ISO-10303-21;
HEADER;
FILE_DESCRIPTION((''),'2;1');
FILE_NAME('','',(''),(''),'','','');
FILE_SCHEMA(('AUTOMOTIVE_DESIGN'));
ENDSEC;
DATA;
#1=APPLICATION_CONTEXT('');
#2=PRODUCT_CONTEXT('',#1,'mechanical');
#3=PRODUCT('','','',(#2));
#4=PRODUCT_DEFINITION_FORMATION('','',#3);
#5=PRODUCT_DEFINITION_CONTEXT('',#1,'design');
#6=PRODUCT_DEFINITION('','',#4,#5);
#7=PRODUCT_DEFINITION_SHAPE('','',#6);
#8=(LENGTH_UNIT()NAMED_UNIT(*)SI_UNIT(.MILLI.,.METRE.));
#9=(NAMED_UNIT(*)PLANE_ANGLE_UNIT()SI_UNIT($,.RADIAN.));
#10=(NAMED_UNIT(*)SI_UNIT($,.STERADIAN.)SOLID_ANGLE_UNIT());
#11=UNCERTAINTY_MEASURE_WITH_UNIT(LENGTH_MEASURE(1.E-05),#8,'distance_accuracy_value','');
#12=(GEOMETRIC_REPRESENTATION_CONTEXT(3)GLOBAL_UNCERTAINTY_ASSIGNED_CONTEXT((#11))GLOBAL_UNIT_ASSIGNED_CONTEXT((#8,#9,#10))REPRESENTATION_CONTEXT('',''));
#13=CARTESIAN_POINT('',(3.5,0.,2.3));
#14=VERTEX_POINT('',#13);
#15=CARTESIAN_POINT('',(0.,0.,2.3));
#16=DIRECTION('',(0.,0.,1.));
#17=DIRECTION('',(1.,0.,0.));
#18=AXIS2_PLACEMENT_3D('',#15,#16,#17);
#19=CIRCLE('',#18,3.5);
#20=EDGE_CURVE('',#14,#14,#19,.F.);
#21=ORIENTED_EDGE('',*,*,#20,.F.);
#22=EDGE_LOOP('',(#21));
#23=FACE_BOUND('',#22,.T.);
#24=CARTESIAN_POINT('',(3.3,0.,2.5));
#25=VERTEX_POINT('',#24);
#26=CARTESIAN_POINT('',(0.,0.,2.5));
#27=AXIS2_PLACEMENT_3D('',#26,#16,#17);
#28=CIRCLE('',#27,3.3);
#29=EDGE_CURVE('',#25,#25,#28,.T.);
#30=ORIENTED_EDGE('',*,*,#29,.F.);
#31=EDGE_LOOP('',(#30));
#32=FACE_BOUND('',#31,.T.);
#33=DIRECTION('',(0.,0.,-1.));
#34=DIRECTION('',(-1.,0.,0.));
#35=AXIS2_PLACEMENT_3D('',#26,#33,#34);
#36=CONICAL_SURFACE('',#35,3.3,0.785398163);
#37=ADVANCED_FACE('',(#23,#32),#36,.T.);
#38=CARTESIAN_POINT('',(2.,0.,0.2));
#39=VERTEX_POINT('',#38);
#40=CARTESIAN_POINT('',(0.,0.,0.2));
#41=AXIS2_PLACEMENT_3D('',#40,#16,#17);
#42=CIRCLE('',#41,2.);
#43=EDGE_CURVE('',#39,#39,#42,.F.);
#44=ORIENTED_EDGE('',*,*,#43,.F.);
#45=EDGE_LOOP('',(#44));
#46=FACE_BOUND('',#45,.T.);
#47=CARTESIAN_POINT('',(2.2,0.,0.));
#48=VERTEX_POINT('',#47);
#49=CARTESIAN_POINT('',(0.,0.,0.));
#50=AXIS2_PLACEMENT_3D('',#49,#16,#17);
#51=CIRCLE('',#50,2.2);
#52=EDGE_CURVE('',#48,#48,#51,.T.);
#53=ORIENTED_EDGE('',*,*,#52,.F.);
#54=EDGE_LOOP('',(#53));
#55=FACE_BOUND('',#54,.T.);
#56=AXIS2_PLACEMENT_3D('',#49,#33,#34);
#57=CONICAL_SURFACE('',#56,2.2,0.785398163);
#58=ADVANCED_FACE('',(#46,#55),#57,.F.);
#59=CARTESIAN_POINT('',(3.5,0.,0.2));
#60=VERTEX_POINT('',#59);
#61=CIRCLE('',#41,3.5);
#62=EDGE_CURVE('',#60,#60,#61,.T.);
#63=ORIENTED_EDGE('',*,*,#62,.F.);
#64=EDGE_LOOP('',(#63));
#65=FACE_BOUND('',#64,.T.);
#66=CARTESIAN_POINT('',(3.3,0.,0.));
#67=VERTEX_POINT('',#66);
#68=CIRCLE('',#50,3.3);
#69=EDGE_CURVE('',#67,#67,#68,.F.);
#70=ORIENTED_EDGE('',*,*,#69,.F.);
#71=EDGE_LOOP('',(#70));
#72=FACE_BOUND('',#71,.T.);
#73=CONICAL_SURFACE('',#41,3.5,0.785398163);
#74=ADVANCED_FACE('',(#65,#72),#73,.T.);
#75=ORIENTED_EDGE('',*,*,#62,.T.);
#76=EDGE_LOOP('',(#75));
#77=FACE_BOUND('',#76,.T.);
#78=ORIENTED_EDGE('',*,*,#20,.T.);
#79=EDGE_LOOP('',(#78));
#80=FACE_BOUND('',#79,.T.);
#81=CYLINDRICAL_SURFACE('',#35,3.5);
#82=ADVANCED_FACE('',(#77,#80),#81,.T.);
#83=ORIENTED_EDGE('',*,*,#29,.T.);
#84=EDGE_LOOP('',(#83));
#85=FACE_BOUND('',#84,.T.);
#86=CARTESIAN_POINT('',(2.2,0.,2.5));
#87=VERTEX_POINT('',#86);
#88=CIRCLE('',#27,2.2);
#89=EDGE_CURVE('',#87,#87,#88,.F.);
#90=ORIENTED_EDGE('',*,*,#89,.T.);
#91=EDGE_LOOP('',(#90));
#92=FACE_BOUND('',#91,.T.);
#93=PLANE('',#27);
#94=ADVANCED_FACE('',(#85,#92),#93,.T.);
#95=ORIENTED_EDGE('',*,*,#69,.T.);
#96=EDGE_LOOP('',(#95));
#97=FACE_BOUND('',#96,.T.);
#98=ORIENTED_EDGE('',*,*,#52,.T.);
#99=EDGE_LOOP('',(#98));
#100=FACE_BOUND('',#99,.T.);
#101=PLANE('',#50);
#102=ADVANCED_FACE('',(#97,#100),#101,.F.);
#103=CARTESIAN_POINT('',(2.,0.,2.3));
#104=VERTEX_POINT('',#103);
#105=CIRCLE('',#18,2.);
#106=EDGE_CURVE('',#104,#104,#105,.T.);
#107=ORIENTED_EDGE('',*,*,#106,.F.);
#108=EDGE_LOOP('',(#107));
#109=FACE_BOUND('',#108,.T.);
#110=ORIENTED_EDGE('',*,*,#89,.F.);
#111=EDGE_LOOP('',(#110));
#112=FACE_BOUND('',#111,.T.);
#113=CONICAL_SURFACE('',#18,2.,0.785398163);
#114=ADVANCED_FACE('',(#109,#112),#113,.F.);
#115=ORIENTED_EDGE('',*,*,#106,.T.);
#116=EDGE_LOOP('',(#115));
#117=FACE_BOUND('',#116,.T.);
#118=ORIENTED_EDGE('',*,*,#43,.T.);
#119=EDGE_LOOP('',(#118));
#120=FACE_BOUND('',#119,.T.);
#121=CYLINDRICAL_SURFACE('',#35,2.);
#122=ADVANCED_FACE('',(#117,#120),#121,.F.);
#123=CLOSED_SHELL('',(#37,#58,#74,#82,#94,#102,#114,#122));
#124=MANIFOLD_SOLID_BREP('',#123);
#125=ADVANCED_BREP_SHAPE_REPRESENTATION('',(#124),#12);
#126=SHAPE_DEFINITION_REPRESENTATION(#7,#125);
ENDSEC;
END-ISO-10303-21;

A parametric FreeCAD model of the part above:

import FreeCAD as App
import Part
import Sketcher


def edges_at(feature, points):
    """Names of the edges that pass closest to the given points."""
    edges = feature.Shape.Edges
    near = lambda p: min(range(len(edges)), key=lambda i: edges[i].distToShape(Part.Vertex(*p))[0])
    return sorted({f"Edge{near(p) + 1}" for p in points})

doc = App.newDocument("Part")
params = doc.addObject("Spreadsheet::Sheet", "Params")
for row, (alias, value) in enumerate([
    ("sketch1_diameter", "7 mm"),
    ("sketch1_diameter2", "4 mm"),
    ("pad1_length", "2.5 mm"),
    ("chamfer_size", "0.2 mm"),
], start=1):
    params.set(f"A{row}", alias)
    params.set(f"B{row}", "=" + value)
    params.setAlias(f"B{row}", alias)

body = doc.addObject("PartDesign::Body", "Body")

# Sketch on XY plane
sketch1 = doc.addObject("Sketcher::SketchObject", "Sketch")
body.addObject(sketch1)
sketch1.AttachmentSupport = (doc.XY_Plane, [""])
sketch1.MapMode = "FlatFace"
sketch1.addGeometry(Part.Circle(App.Vector(0, 0, 0), App.Vector(0, 0, 1), 3.5), False)
sketch1.addGeometry(Part.Circle(App.Vector(0, 0, 0), App.Vector(0, 0, 1), 2), False)
sketch1.addConstraint(Sketcher.Constraint("Coincident", 0, 3, -1, 1))
sketch1.addConstraint(Sketcher.Constraint("Coincident", 1, 3, -1, 1))
sketch1.addConstraint(Sketcher.Constraint("Diameter", 0, 7.0))
sketch1.addConstraint(Sketcher.Constraint("Diameter", 1, 4.0))
sketch1.setExpression("Constraints[2]", "Params.sketch1_diameter")
sketch1.setExpression("Constraints[3]", "Params.sketch1_diameter2")
pad1 = doc.addObject("PartDesign::Pad", "Pad")
body.addObject(pad1)
pad1.Profile = sketch1
pad1.setExpression("Length", "Params.pad1_length")
doc.recompute()

chamfer = doc.addObject("PartDesign::Chamfer", "Chamfer")
body.addObject(chamfer)
chamfer.Base = (pad1, edges_at(pad1, [
    (-3.5, 0, 0),
    (-3.5, 0, 2.5),
    (-2, 0, 0),
    (-2, 0, 2.5),
]))
chamfer.setExpression("Size", "Params.chamfer_size")

doc.recompute()
